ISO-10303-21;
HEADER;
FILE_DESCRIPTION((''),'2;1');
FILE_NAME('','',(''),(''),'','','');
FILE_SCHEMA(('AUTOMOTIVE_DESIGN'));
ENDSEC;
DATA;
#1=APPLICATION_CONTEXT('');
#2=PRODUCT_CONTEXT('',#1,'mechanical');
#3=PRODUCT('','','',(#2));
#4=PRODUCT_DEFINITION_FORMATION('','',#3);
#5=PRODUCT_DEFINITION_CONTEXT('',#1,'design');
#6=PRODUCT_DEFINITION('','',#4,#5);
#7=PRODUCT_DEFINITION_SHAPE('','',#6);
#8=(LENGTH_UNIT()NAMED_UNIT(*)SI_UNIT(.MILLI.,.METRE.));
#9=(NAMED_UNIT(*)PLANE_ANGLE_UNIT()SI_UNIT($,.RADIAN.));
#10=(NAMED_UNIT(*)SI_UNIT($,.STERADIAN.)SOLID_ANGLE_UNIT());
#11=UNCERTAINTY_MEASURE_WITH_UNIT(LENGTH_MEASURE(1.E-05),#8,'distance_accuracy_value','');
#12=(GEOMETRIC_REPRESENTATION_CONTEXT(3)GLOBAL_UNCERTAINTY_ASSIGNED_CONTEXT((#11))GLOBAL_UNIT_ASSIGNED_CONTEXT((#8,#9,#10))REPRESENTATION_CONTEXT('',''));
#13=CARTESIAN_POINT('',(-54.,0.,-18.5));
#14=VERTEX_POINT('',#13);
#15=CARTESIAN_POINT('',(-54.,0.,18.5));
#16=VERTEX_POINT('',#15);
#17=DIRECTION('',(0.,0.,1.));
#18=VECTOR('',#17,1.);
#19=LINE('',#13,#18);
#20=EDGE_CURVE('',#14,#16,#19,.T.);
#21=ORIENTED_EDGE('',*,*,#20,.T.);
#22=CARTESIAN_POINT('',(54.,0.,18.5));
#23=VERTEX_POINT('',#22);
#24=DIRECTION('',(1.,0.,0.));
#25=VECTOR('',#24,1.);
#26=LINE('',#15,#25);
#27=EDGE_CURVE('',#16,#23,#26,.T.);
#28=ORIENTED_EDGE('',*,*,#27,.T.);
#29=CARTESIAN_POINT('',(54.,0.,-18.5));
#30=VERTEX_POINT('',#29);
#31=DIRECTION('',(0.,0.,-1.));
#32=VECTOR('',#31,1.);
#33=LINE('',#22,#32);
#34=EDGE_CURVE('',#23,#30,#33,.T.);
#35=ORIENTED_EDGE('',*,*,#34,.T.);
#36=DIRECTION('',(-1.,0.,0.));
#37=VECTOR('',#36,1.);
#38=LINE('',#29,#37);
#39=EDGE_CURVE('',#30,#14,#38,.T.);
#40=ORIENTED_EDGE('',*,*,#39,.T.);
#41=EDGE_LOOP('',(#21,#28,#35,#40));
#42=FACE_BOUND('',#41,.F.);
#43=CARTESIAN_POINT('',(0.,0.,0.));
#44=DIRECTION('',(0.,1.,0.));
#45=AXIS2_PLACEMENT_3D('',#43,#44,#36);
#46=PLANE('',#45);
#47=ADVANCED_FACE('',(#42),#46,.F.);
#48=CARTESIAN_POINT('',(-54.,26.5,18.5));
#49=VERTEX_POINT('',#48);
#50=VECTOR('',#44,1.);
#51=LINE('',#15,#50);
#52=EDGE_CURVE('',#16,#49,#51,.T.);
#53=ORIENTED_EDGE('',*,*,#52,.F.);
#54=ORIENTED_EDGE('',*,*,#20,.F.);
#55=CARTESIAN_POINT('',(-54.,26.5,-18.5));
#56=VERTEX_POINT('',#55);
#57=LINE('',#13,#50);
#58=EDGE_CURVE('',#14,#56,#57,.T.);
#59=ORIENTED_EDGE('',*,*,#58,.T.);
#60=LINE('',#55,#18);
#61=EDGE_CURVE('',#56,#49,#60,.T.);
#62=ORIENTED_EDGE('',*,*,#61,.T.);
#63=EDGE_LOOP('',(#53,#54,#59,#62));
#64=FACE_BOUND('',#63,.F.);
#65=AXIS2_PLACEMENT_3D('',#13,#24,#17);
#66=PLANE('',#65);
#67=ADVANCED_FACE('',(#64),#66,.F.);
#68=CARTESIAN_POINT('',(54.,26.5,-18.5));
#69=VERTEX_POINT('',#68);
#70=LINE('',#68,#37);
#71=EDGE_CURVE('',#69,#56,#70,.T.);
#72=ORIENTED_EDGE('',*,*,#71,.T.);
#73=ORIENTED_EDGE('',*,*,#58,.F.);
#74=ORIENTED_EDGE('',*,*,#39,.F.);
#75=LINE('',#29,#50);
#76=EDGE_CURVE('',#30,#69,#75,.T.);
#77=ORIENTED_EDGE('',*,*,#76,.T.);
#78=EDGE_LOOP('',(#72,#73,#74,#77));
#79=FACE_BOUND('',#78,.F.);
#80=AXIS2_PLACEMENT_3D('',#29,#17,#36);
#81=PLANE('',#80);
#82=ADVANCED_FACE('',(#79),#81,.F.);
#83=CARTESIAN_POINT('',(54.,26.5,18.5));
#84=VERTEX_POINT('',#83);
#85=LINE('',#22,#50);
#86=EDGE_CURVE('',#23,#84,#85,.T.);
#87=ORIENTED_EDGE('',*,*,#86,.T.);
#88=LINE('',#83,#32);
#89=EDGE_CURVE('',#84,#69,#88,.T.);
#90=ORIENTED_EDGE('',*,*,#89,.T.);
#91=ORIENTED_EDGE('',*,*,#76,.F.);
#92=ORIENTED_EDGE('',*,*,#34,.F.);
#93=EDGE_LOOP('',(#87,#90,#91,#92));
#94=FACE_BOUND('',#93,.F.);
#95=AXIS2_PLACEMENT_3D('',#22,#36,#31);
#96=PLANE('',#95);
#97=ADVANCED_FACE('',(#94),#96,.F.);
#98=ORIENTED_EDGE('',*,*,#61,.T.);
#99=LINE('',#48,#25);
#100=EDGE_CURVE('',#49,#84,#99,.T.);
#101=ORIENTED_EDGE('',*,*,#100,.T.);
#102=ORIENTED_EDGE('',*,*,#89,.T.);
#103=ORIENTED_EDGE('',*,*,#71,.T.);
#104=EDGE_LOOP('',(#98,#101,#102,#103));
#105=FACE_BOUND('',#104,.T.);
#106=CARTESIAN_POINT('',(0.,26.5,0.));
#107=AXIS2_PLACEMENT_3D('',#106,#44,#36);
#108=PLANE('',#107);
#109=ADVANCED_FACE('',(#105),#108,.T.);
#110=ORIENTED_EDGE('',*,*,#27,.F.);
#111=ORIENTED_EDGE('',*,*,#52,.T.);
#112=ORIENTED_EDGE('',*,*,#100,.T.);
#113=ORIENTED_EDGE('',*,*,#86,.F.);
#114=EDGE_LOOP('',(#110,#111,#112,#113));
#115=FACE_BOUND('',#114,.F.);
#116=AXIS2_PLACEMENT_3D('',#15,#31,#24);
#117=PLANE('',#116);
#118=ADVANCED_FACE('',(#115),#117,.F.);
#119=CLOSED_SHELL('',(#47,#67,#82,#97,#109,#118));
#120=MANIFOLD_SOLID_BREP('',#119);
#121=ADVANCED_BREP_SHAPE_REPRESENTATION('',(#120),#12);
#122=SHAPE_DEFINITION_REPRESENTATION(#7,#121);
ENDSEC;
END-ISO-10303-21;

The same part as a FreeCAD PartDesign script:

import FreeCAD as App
import Part
import Sketcher
from FreeCAD import Vector
Q = App.Units.Quantity

doc = App.newDocument("Part")
body = doc.addObject("PartDesign::Body", "Body")

# Sketch on XZ plane
sketch1 = body.newObject("Sketcher::SketchObject", "Sketch")
sketch1.AttachmentSupport = (doc.getObject("XZ_Plane"), [""])
sketch1.MapMode = "FlatFace"
sketch1.addGeometry([
    Part.LineSegment(Vector(54, 18, 0), Vector(54, -18, 0)),
    Part.LineSegment(Vector(54, -18, 0), Vector(-54, -18, 0)),
    Part.LineSegment(Vector(-54, -18, 0), Vector(-54, 18, 0)),
    Part.LineSegment(Vector(-54, 18, 0), Vector(54, 18, 0)),
], False)
sketch1.addConstraint([
    Sketcher.Constraint("Coincident", 0, 2, 1, 1),
    Sketcher.Constraint("Coincident", 1, 2, 2, 1),
    Sketcher.Constraint("Coincident", 2, 2, 3, 1),
    Sketcher.Constraint("Coincident", 3, 2, 0, 1),
    Sketcher.Constraint("Vertical", 0),
    Sketcher.Constraint("Horizontal", 1),
    Sketcher.Constraint("Vertical", 2),
    Sketcher.Constraint("Horizontal", 3),
    Sketcher.Constraint("Symmetric", 0, 2, 2, 2, -1, 1),
    Sketcher.Constraint("DistanceX", 1, 2, 1, 1, Q("108 mm")),
    Sketcher.Constraint("DistanceY", 0, 2, 0, 1, Q("37 mm")),
])
pad1 = body.newObject("PartDesign::Pad", "Pad")
pad1.Profile = sketch1
pad1.Length = 26.5
pad1.Reversed = True

doc.recompute()
